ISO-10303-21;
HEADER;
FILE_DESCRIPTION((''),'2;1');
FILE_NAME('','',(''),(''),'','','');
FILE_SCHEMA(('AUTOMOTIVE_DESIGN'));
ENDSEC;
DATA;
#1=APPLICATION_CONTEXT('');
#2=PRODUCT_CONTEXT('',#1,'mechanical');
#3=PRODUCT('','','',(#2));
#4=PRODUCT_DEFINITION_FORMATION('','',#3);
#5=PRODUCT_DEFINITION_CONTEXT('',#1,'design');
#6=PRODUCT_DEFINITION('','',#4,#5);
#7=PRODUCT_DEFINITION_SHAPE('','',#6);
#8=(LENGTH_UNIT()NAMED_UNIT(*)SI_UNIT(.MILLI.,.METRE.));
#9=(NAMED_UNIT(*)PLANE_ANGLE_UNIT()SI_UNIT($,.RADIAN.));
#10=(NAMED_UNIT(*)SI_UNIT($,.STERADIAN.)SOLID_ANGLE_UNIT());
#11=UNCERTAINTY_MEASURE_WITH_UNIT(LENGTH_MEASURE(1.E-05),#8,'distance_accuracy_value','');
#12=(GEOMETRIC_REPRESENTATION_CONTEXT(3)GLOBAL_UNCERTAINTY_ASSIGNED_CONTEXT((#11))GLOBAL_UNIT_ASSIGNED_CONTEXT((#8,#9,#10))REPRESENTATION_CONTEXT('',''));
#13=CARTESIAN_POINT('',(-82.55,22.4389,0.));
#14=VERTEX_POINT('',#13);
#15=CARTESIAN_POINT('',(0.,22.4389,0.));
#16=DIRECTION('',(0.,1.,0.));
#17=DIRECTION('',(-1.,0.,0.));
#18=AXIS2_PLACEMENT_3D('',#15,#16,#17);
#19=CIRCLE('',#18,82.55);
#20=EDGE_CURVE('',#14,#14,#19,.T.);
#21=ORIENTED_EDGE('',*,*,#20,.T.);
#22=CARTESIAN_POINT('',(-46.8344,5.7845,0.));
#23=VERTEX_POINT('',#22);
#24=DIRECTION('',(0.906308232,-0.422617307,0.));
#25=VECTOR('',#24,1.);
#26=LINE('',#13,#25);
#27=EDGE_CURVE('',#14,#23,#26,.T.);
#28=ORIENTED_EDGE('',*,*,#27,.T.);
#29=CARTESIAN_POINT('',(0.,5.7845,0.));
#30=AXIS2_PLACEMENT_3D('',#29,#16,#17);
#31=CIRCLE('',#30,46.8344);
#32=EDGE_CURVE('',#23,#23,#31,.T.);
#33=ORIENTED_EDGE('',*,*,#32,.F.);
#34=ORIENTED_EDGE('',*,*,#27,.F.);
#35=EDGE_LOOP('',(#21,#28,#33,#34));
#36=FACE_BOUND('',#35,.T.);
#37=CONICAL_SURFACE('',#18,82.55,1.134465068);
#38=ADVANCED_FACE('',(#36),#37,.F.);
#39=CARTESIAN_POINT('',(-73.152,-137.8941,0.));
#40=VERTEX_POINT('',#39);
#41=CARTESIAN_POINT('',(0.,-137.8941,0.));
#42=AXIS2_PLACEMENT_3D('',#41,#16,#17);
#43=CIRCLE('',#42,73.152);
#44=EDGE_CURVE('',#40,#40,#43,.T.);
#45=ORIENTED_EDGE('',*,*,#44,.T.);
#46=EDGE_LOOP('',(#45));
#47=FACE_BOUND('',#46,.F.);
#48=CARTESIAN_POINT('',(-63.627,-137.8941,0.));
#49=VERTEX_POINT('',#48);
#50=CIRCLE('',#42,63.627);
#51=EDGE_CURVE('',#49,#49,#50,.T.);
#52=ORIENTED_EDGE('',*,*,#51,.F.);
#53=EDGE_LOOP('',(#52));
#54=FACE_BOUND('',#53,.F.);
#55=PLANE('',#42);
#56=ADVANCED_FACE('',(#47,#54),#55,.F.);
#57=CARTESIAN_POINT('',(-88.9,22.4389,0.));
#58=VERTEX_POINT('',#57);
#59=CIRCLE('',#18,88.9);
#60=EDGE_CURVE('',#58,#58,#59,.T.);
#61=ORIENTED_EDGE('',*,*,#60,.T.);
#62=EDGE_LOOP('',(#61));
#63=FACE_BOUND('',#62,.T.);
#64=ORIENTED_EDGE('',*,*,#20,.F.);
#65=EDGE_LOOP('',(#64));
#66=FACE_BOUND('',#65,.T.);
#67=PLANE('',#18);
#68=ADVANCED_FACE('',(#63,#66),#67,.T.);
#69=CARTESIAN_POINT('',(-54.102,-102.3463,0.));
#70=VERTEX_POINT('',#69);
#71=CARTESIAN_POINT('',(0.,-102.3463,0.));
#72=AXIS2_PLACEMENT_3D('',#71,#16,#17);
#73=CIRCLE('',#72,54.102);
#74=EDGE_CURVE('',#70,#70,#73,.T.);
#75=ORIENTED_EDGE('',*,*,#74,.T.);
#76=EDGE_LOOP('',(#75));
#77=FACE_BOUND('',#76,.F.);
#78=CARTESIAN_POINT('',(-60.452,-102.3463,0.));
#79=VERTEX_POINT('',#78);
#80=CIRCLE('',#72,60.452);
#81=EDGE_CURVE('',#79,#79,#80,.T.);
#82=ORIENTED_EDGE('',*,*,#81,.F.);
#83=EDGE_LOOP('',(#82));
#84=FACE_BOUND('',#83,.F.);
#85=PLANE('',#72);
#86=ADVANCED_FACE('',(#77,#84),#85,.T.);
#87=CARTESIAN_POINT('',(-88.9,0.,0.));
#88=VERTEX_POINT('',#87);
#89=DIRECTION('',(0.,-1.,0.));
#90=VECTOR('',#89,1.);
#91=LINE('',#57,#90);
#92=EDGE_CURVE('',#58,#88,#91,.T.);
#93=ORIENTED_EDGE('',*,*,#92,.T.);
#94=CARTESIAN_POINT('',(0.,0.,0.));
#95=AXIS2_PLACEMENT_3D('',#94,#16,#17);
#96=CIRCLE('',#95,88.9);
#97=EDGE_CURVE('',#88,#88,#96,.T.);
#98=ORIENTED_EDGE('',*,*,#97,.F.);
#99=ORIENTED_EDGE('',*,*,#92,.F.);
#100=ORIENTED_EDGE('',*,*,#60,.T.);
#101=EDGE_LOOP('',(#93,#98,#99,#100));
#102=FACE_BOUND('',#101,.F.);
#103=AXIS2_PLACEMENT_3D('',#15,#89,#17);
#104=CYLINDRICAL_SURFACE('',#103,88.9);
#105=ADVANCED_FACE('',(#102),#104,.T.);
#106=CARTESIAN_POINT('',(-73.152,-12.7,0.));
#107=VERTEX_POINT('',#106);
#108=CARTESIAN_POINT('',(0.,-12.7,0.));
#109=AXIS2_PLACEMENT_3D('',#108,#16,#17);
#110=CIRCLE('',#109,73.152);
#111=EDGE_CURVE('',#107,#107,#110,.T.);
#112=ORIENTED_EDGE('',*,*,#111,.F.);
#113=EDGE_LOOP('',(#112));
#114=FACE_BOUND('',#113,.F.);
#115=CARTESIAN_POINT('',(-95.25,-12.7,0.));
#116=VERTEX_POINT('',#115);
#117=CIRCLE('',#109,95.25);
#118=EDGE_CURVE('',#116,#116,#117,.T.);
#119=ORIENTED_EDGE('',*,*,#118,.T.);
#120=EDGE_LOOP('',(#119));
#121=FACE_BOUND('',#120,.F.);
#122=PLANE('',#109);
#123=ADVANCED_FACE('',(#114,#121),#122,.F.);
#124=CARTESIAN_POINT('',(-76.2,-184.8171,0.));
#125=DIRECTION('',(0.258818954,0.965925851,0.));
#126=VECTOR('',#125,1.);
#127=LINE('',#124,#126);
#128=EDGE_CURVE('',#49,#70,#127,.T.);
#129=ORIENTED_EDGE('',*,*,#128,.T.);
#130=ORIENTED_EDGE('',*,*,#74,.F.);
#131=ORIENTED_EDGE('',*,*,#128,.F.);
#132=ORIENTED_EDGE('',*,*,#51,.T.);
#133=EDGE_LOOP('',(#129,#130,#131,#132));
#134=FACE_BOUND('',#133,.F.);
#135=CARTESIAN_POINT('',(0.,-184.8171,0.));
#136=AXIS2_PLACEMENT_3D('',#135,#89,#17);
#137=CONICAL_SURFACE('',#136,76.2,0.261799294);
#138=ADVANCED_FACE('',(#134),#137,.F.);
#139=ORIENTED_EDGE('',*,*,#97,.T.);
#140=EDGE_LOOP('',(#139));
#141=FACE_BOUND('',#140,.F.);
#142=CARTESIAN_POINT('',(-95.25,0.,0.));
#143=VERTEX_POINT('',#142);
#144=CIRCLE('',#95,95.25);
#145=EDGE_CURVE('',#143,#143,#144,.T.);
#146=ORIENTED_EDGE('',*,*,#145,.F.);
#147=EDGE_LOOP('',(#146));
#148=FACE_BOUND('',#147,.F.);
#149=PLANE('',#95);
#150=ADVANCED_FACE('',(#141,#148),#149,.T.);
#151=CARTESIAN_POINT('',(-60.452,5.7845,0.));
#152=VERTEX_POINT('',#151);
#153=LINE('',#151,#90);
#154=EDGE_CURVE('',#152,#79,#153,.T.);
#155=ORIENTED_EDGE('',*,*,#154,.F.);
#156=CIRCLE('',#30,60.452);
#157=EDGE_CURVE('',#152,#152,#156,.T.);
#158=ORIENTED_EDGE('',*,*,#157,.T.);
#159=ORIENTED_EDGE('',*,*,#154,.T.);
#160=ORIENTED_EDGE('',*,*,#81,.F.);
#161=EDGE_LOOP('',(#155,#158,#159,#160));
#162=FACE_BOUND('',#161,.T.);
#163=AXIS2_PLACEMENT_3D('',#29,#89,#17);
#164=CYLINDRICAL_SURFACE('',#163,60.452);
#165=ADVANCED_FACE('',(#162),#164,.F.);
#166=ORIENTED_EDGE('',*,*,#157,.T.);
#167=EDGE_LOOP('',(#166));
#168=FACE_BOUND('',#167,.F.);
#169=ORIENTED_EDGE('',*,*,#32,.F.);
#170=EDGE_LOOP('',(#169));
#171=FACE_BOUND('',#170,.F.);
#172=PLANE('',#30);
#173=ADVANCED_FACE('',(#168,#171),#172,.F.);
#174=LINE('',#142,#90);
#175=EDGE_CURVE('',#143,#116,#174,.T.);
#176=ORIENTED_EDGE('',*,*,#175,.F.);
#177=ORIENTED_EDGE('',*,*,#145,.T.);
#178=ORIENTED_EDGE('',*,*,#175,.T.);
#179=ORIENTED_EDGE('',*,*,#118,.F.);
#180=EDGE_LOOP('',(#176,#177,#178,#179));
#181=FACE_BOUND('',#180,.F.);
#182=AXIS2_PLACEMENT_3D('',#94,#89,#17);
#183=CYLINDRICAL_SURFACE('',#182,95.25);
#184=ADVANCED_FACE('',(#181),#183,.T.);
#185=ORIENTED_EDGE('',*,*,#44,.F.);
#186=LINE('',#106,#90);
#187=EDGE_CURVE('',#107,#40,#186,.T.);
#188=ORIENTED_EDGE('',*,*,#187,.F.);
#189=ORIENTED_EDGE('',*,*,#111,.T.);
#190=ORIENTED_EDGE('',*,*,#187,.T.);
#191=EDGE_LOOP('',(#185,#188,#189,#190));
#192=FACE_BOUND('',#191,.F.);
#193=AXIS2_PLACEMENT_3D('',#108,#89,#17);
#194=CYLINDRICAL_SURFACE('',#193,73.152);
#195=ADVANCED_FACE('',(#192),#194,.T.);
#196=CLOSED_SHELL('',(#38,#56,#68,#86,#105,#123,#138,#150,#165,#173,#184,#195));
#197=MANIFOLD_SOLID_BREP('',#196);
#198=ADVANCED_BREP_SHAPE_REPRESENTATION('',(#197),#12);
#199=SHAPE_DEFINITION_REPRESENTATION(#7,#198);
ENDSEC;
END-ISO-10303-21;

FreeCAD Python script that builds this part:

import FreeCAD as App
import Part
import Sketcher

V = App.Vector
Q = App.Units.Quantity


def add_polygon(sketch, points):
    """Adds a closed chain of lines whose ends are joined by coincident constraints."""
    first, n = sketch.GeometryCount, len(points)
    for a, b in zip(points, points[1:] + points[:1]):
        sketch.addGeometry(Part.LineSegment(App.Vector(*a, 0), App.Vector(*b, 0)), False)
    for i in range(n):
        sketch.addConstraint(Sketcher.Constraint("Coincident", first + i, 2, first + (i + 1) % n, 1))

doc = App.newDocument("Part")
body = doc.addObject("PartDesign::Body", "Body")

sketch1 = body.newObject("Sketcher::SketchObject", "Sketch")
sketch1.AttachmentSupport = (doc.getObject("XY_Plane"), [""])
sketch1.MapMode = "FlatFace"
add_polygon(sketch1, [(-89, 22), (-89, 0), (-95, 0), (-95, -13), (-73, -13), (-73, -138), (-64, -138), (-54, -102), (-60, -102), (-60, 6), (-47, 6), (-83, 22)])
sketch1.addConstraint(Sketcher.Constraint("Vertical", 0))
sketch1.addConstraint(Sketcher.Constraint("Horizontal", 1))
sketch1.addConstraint(Sketcher.Constraint("Vertical", 2))
sketch1.addConstraint(Sketcher.Constraint("Horizontal", 3))
sketch1.addConstraint(Sketcher.Constraint("Vertical", 4))
sketch1.addConstraint(Sketcher.Constraint("Horizontal", 5))
sketch1.addConstraint(Sketcher.Constraint("Horizontal", 7))
sketch1.addConstraint(Sketcher.Constraint("Vertical", 8))
sketch1.addConstraint(Sketcher.Constraint("Horizontal", 9))
sketch1.addConstraint(Sketcher.Constraint("Horizontal", 11))
sketch1.addConstraint(Sketcher.Constraint("PointOnObject", 0, 2, -1))
sketch1.addConstraint(Sketcher.Constraint("Equal", 1, 7))
sketch1.addConstraint(Sketcher.Constraint("Equal", 7, 11))
sketch1.addConstraint(Sketcher.Constraint("DistanceY", 2, 2, 2, 1, Q("0.5 in")))
sketch1.addConstraint(Sketcher.Constraint("DistanceX", 1, 2, 1, 1, Q("0.25 in")))
sketch1.addConstraint(Sketcher.Constraint("DistanceX", 4, 2, 7, 2, Q("0.5 in")))
sketch1.addConstraint(Sketcher.Constraint("DistanceX", 5, 1, 5, 2, Q("0.375 in")))
sketch1.addConstraint(Sketcher.Constraint("DistanceX", 1, 2, -1, 1, Q("3.75 in")))
sketch1.addConstraint(Sketcher.Constraint("Angle", 6, Q("75 deg")))
sketch1.addConstraint(Sketcher.Constraint("Angle", 10, Q("155 deg")))
sketch1.addConstraint(Sketcher.Constraint("DistanceX", 3, 1, 3, 2, Q("0.87 in")))
sketch1.addConstraint(Sketcher.Constraint("DistanceY", 4, 2, 4, 1, Q("4.9289 in")))
sketch1.addConstraint(Sketcher.Constraint("DistanceX", 9, 1, 9, 2, 13.6176))
sketch1.addConstraint(Sketcher.Constraint("DistanceY", 0, 2, 0, 1, 22.439))
revolution = body.newObject("PartDesign::Revolution", "Revolution")
revolution.Profile = sketch1
revolution.ReferenceAxis = (sketch1, ["V_Axis"])
revolution.Angle = 360

doc.recompute()
